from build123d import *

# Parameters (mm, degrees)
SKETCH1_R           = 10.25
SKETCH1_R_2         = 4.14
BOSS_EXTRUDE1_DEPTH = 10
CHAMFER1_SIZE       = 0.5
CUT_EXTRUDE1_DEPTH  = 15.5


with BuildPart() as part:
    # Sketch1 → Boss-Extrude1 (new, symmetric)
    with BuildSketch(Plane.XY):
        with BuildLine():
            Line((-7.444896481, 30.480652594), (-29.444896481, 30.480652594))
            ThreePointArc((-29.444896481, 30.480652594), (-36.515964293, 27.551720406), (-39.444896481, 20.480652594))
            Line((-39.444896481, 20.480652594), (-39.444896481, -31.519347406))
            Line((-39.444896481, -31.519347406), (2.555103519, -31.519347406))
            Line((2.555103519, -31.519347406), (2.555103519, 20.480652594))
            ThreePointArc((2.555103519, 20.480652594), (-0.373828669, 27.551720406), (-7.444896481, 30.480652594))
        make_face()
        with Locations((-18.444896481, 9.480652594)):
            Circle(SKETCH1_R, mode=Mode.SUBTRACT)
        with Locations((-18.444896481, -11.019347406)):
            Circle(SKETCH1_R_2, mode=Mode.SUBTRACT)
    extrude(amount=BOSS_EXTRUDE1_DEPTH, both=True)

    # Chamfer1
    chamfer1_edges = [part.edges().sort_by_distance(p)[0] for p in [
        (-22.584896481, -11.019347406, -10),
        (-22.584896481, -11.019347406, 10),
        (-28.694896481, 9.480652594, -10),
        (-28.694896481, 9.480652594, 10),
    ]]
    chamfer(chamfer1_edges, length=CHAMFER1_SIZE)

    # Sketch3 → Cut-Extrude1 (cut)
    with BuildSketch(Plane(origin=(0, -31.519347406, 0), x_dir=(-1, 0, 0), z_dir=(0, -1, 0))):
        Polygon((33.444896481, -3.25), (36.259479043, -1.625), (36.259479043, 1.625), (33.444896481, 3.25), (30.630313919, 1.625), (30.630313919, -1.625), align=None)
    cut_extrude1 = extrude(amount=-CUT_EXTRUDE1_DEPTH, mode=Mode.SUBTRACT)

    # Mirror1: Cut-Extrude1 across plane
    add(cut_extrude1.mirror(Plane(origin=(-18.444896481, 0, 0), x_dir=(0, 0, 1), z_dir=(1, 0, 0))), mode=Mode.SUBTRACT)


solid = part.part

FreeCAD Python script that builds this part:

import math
import FreeCAD as App
import Part
import Sketcher
Q = App.Units.Quantity


def edges_at(feature, points):
    """Names of the edges that pass closest to the given points."""
    edges = feature.Shape.Edges
    near = lambda p: min(range(len(edges)), key=lambda i: edges[i].distToShape(Part.Vertex(*p))[0])
    return sorted({f"Edge{near(p) + 1}" for p in points})


def add_polygon(sketch, points):
    """Adds a closed chain of lines whose ends are joined by coincident constraints."""
    first, n = sketch.GeometryCount, len(points)
    for a, b in zip(points, points[1:] + points[:1]):
        sketch.addGeometry(Part.LineSegment(App.Vector(*a, 0), App.Vector(*b, 0)), False)
    for i in range(n):
        sketch.addConstraint(Sketcher.Constraint("Coincident", first + i, 2, first + (i + 1) % n, 1))

doc = App.newDocument("Part")
body = doc.addObject("PartDesign::Body", "Body")

sketch1 = doc.addObject("Sketcher::SketchObject", "Sketch")
body.addObject(sketch1)
sketch1.AttachmentSupport = (doc.XY_Plane, [""])
sketch1.MapMode = "FlatFace"
sketch1.addGeometry([
    Part.LineSegment(App.Vector(-7.444896, 30.480653, 0), App.Vector(-29.444896, 30.480653, 0)),
    Part.ArcOfCircle(Part.Circle(App.Vector(-29.444896, 20.480653, 0), App.Vector(0, 0, 1), 10), math.radians(90), math.radians(180)),
    Part.LineSegment(App.Vector(-39.444896, 20.480653, 0), App.Vector(-39.444896, -31.519347, 0)),
    Part.LineSegment(App.Vector(-39.444896, -31.519347, 0), App.Vector(2.555104, -31.519347, 0)),
    Part.LineSegment(App.Vector(2.555104, -31.519347, 0), App.Vector(2.555104, 20.480653, 0)),
    Part.ArcOfCircle(Part.Circle(App.Vector(-7.444896, 20.480653, 0), App.Vector(0, 0, 1), 10), math.radians(0), math.radians(90)),
    Part.Circle(App.Vector(-18.444896, -11.019347, 0), App.Vector(0, 0, 1), 4.14),
    Part.Circle(App.Vector(-18.444896, 9.480653, 0), App.Vector(0, 0, 1), 10.25),
], False)
sketch1.addConstraint([
    Sketcher.Constraint("Tangent", 0, 2, 1, 1),
    Sketcher.Constraint("Tangent", 1, 2, 2, 1),
    Sketcher.Constraint("Coincident", 2, 2, 3, 1),
    Sketcher.Constraint("Coincident", 3, 2, 4, 1),
    Sketcher.Constraint("Tangent", 4, 2, 5, 1),
    Sketcher.Constraint("Tangent", 5, 2, 0, 1),
    Sketcher.Constraint("Horizontal", 0),
    Sketcher.Constraint("Vertical", 2),
    Sketcher.Constraint("Horizontal", 3),
    Sketcher.Constraint("Vertical", 4),
    Sketcher.Constraint("Equal", 1, 5),
    Sketcher.Constraint("Vertical", 6, 3, 7, 3),
    Sketcher.Constraint("Radius", 1, 10.0),
    Sketcher.Constraint("Diameter", 7, 20.5),
    Sketcher.Constraint("Diameter", 6, 8.28),
    Sketcher.Constraint("DistanceX", 0, 2, 0, 1, 22.0),
    Sketcher.Constraint("DistanceY", 2, 2, 2, 1, 52.0),
    Sketcher.Constraint("DistanceX", 1, 3, 6, 3, 11.0),
    Sketcher.Constraint("DistanceY", 7, 3, 1, 3, 11.0),
    Sketcher.Constraint("DistanceY", 6, 3, 1, 3, 31.5),
    Sketcher.Constraint("DistanceX", 1, 3, -1, 1, 29.444896),
    Sketcher.Constraint("DistanceY", -1, 1, 1, 3, 20.480653),
])
pad1 = doc.addObject("PartDesign::Pad", "Pad")
body.addObject(pad1)
pad1.Profile = sketch1
pad1.Length = 20
pad1.Midplane = True
doc.recompute()

chamfer = doc.addObject("PartDesign::Chamfer", "Chamfer")
body.addObject(chamfer)
chamfer.Base = (pad1, edges_at(pad1, [
    (-22.585, -11.019, -10),
    (-22.585, -11.019, 10),
    (-28.695, 9.481, -10),
    (-28.695, 9.481, 10),
]))
chamfer.Size = 0.5

sketch2 = doc.addObject("Sketcher::SketchObject", "Sketch001")
body.addObject(sketch2)
sketch2.AttachmentSupport = (doc.XZ_Plane, [""])
sketch2.MapMode = "FlatFace"
sketch2.AttachmentOffset = App.Placement(App.Vector(0, 0, 31.519347), App.Rotation())
add_polygon(sketch2, [(-33.444896, 3.25), (-36.259479, 1.625), (-36.259479, -1.625), (-33.444896, -3.25), (-30.630314, -1.625), (-30.630314, 1.625)])
sketch2.addConstraint([
    Sketcher.Constraint("Vertical", 1),
    Sketcher.Constraint("Vertical", 4),
    Sketcher.Constraint("Symmetric", 2, 2, 5, 2, -1),
    Sketcher.Constraint("Parallel", 0, 3),
    Sketcher.Constraint("Parallel", 2, 5),
    Sketcher.Constraint("Horizontal", 1, 2, 3, 2),
    Sketcher.Constraint("Horizontal", 0, 2, 4, 2),
    Sketcher.Constraint("Angle", 0, Q("-150 deg")),
    Sketcher.Constraint("DistanceY", 1, 2, 1, 1, 3.25),
    Sketcher.Constraint("DistanceY", 2, 2, 5, 2, 6.5),
    Sketcher.Constraint("DistanceX", 0, 2, -1, 1, 36.259479),
])
pocket1 = doc.addObject("PartDesign::Pocket", "Pocket")
body.addObject(pocket1)
pocket1.Profile = sketch2
pocket1.Length = 15.5
doc.recompute()

datumplane = doc.addObject("PartDesign::Plane", "DatumPlane")
body.addObject(datumplane)
datumplane.AttachmentSupport = (doc.YZ_Plane, [""])
datumplane.MapMode = "FlatFace"
datumplane.AttachmentOffset = App.Placement(App.Vector(0, 0, -18.444896), App.Rotation())
mirrored = doc.addObject("PartDesign::Mirrored", "Mirrored")
body.addObject(mirrored)
mirrored.Originals = [pocket1]
mirrored.MirrorPlane = (datumplane, [""])
body.Tip = mirrored

doc.recompute()
